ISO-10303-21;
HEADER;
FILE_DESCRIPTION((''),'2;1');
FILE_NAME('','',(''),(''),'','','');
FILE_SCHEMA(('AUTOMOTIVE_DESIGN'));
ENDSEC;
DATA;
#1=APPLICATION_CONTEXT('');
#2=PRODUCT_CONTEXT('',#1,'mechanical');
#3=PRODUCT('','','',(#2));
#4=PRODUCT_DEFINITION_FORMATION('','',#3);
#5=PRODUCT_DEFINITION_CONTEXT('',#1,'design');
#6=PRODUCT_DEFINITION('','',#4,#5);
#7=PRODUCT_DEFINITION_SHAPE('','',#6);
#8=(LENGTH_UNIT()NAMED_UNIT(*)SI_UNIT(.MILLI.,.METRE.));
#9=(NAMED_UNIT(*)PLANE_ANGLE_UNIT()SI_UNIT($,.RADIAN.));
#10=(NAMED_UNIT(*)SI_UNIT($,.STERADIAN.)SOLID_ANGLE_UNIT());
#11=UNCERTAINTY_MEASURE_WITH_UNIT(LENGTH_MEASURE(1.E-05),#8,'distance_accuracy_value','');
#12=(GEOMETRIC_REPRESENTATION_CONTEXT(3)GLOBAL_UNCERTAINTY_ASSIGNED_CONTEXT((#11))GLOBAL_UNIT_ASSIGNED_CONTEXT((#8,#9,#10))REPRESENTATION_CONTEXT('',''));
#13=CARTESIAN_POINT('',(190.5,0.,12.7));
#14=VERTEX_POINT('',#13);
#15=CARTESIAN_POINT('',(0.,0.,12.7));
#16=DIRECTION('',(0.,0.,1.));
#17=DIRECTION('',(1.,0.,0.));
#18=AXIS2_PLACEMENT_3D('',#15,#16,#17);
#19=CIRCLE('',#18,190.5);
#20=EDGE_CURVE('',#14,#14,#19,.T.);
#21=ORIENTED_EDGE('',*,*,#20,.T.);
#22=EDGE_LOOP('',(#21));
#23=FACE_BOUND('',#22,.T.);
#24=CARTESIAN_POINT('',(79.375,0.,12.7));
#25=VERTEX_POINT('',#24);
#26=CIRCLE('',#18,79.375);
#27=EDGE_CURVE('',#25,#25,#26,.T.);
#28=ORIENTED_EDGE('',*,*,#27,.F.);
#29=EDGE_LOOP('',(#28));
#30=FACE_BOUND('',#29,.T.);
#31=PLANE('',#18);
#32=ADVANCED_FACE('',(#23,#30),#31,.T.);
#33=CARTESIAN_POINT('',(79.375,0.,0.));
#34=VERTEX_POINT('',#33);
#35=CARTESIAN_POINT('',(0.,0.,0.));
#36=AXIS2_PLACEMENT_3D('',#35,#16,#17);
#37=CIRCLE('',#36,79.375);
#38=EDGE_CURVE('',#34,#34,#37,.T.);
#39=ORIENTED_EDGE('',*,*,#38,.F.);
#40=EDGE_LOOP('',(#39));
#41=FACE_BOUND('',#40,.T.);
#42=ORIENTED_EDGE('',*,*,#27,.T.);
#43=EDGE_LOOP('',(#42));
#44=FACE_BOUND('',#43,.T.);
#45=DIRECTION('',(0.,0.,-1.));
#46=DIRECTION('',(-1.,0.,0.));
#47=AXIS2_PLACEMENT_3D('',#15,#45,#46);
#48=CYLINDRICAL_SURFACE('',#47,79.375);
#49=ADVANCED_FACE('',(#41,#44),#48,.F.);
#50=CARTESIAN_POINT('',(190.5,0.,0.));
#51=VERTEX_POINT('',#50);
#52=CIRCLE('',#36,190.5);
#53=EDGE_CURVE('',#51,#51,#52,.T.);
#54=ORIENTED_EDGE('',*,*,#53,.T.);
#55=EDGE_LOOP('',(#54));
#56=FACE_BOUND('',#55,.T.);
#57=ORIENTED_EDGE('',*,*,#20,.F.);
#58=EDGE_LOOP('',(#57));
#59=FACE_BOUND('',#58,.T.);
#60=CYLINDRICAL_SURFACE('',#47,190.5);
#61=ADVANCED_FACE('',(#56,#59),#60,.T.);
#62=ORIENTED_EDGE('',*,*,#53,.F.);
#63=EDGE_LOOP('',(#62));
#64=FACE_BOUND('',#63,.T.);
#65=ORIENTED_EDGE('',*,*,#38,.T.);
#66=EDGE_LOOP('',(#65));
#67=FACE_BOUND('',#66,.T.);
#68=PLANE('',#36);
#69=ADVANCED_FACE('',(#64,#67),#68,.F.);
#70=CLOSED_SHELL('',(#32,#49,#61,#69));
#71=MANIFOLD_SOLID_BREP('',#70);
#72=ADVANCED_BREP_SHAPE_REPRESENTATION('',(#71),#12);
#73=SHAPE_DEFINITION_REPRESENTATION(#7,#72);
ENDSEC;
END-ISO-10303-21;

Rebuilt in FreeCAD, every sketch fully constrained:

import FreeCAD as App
import Part
import Sketcher

V = App.Vector
Q = App.Units.Quantity

doc = App.newDocument("Part")
body = doc.addObject("PartDesign::Body", "Body")

sketch1 = body.newObject("Sketcher::SketchObject", "Sketch")
sketch1.AttachmentSupport = (doc.getObject("XY_Plane"), [""])
sketch1.MapMode = "FlatFace"
sketch1.addGeometry([
    Part.Circle(V(0, 0, 0), V(0, 0, 1), 190.5),
    Part.Circle(V(0, 0, 0), V(0, 0, 1), 79.375),
], False)
sketch1.addConstraint([
    Sketcher.Constraint("Coincident", 0, 3, -1, 1),
    Sketcher.Constraint("Coincident", 1, 3, -1, 1),
    Sketcher.Constraint("Diameter", 0, Q("15 in")),
    Sketcher.Constraint("Diameter", 1, Q("6.25 in")),
])
pad1 = body.newObject("PartDesign::Pad", "Pad")
pad1.Profile = sketch1
pad1.Length = Q("0.5 in")

doc.recompute()
